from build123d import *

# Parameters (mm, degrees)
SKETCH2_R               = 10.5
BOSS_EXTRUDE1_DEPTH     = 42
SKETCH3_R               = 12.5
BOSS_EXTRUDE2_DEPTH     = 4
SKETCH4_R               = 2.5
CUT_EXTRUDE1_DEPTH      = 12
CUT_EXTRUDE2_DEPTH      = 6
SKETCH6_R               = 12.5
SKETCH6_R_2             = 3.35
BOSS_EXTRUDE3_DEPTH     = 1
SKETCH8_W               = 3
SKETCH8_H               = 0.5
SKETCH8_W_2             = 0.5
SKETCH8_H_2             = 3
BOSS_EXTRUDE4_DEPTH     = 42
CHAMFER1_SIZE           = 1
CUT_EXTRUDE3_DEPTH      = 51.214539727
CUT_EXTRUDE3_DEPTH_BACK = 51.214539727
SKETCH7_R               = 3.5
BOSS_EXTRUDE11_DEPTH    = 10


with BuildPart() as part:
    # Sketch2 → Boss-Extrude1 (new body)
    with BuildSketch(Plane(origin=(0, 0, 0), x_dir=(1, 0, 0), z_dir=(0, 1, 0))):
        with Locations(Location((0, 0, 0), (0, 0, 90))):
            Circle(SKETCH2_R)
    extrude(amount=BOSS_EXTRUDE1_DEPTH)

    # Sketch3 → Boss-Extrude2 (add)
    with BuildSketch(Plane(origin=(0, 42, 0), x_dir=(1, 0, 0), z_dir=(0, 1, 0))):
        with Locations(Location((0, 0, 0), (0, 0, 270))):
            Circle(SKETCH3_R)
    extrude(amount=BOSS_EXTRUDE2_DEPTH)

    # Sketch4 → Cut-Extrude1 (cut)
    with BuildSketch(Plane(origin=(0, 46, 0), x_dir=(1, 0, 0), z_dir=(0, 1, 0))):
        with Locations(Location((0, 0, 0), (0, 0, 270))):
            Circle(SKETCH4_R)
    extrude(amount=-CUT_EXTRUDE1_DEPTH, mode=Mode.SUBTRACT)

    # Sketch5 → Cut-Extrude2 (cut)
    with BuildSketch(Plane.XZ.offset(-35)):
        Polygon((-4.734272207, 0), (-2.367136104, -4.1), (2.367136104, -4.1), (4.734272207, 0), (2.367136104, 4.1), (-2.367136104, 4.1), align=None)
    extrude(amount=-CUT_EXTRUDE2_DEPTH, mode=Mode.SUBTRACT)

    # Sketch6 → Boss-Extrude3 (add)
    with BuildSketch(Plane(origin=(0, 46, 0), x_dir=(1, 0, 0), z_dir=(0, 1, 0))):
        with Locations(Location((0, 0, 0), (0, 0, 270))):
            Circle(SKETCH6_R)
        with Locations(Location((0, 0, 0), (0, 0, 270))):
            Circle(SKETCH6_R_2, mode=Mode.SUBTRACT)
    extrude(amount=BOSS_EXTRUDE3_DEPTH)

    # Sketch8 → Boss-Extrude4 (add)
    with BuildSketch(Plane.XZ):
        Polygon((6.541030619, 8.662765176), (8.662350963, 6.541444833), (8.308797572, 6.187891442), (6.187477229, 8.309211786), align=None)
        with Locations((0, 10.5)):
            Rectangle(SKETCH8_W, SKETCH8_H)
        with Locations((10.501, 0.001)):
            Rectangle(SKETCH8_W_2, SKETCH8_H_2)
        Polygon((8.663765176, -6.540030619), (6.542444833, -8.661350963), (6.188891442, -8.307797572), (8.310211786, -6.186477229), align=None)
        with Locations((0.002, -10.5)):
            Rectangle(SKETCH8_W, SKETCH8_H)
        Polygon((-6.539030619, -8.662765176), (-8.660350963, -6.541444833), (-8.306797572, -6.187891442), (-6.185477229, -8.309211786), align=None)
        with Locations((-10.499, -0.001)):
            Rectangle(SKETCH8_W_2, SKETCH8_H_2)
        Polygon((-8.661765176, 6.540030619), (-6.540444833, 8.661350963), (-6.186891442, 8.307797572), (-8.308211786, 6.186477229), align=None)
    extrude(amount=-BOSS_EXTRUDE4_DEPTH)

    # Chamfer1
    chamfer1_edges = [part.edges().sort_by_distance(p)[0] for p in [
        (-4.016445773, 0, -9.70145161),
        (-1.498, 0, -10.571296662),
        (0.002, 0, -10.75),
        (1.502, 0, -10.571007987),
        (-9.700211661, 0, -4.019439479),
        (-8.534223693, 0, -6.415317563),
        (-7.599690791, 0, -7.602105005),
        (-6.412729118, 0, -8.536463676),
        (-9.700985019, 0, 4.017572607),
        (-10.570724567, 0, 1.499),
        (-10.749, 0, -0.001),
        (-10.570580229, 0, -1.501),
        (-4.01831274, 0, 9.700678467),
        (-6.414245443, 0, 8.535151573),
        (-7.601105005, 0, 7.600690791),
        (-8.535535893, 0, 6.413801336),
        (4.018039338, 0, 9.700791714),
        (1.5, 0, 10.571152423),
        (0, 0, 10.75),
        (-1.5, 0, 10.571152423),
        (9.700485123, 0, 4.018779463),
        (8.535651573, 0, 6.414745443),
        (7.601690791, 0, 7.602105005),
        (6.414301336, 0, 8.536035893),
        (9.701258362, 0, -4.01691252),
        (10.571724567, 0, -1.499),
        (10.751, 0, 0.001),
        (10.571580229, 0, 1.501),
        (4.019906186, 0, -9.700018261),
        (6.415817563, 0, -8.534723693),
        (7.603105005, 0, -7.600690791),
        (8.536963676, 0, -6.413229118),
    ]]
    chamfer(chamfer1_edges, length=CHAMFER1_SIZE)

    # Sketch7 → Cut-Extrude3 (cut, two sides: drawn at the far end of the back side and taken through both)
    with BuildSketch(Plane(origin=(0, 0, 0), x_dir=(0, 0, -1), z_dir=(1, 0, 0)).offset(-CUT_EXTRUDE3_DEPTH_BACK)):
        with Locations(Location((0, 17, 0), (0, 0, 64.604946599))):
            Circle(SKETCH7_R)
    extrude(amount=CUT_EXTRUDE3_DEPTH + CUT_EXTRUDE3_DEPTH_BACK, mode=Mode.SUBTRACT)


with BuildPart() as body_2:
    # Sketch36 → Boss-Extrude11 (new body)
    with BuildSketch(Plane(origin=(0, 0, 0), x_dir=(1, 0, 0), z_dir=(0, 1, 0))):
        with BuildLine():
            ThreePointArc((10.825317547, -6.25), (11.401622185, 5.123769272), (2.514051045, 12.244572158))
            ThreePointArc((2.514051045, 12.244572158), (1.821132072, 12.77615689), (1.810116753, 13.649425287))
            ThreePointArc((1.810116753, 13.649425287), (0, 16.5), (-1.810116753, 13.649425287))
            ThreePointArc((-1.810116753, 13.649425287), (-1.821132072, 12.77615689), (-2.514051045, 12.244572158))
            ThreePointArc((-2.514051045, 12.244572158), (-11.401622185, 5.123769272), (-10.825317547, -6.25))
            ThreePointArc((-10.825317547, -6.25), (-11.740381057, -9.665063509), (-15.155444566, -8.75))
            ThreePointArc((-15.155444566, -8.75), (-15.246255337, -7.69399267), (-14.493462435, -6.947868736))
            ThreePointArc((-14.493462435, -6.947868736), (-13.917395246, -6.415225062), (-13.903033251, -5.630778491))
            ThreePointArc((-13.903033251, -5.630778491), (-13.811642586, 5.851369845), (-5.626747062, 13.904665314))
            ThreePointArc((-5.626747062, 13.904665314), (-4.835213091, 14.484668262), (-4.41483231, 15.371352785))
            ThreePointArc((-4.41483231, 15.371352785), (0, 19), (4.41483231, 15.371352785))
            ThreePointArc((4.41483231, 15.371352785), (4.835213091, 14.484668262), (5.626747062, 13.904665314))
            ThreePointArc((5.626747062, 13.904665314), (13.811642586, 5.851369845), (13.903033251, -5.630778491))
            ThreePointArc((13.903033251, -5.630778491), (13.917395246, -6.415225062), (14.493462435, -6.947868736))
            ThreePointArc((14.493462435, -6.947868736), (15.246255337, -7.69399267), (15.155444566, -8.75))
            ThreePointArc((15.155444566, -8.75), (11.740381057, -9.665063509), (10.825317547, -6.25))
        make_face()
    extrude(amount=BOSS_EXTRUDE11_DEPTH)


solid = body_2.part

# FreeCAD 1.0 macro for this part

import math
import FreeCAD as App
import Part
import Sketcher
Q = App.Units.Quantity


def edges_at(feature, points):
    """Names of the edges that pass closest to the given points."""
    edges = feature.Shape.Edges
    near = lambda p: min(range(len(edges)), key=lambda i: edges[i].distToShape(Part.Vertex(*p))[0])
    return sorted({f"Edge{near(p) + 1}" for p in points})

doc = App.newDocument("Part")
body = doc.addObject("PartDesign::Body", "Body")

sketch1 = body.newObject("Sketcher::SketchObject", "Sketch")
sketch1.AttachmentSupport = (doc.getObject("XZ_Plane"), [""])
sketch1.MapMode = "FlatFace"
sketch1.addGeometry(Part.Circle(App.Vector(0, 0, 0), App.Vector(0, 0, 1), 10), False)
sketch1.addConstraint([
    Sketcher.Constraint("Coincident", 0, 3, -1, 1),
    Sketcher.Constraint("Diameter", 0, 21.0),
])
pad1 = body.newObject("PartDesign::Pad", "Pad")
pad1.Profile = sketch1
pad1.Length = 42
pad1.Reversed = True

sketch2 = body.newObject("Sketcher::SketchObject", "Sketch001")
sketch2.AttachmentSupport = (doc.getObject("XZ_Plane"), [""])
sketch2.MapMode = "FlatFace"
sketch2.AttachmentOffset = App.Placement(App.Vector(0, 0, -42), App.Rotation())
sketch2.addGeometry(Part.Circle(App.Vector(0, 0, 0), App.Vector(0, 0, 1), 12), False)
sketch2.addConstraint([
    Sketcher.Constraint("Coincident", 0, 3, -1, 1),
    Sketcher.Constraint("Diameter", 0, 25.0),
])
pad2 = body.newObject("PartDesign::Pad", "Pad001")
pad2.Profile = sketch2
pad2.Length = 4
pad2.Reversed = True

sketch3 = body.newObject("Sketcher::SketchObject", "Sketch002")
sketch3.AttachmentSupport = (doc.getObject("XZ_Plane"), [""])
sketch3.MapMode = "FlatFace"
sketch3.AttachmentOffset = App.Placement(App.Vector(0, 0, -46), App.Rotation())
sketch3.addGeometry(Part.Circle(App.Vector(0, 0, 0), App.Vector(0, 0, 1), 2.5), False)
sketch3.addConstraint([
    Sketcher.Constraint("Coincident", 0, 3, -1, 1),
    Sketcher.Constraint("Diameter", 0, 5.0),
])
pocket1 = body.newObject("PartDesign::Pocket", "Pocket")
pocket1.Profile = sketch3
pocket1.Length = 12
pocket1.Reversed = True

sketch4 = body.newObject("Sketcher::SketchObject", "Sketch003")
sketch4.AttachmentSupport = (doc.getObject("XZ_Plane"), [""])
sketch4.MapMode = "FlatFace"
sketch4.AttachmentOffset = App.Placement(App.Vector(0, 0, -35), App.Rotation())
sketch4.addGeometry([
    Part.LineSegment(App.Vector(-4.7, 0, 0), App.Vector(-2.4, -4.1, 0)),
    Part.LineSegment(App.Vector(-2.4, -4.1, 0), App.Vector(2.4, -4.1, 0)),
    Part.LineSegment(App.Vector(2.4, -4.1, 0), App.Vector(4.7, 0, 0)),
    Part.LineSegment(App.Vector(4.7, 0, 0), App.Vector(2.4, 4.1, 0)),
    Part.LineSegment(App.Vector(2.4, 4.1, 0), App.Vector(-2.4, 4.1, 0)),
    Part.LineSegment(App.Vector(-2.4, 4.1, 0), App.Vector(-4.7, 0, 0)),
], False)
sketch4.addConstraint([
    Sketcher.Constraint("Coincident", 0, 2, 1, 1),
    Sketcher.Constraint("Coincident", 1, 2, 2, 1),
    Sketcher.Constraint("Coincident", 2, 2, 3, 1),
    Sketcher.Constraint("Coincident", 3, 2, 4, 1),
    Sketcher.Constraint("Coincident", 4, 2, 5, 1),
    Sketcher.Constraint("Coincident", 5, 2, 0, 1),
    Sketcher.Constraint("Horizontal", 1),
    Sketcher.Constraint("Horizontal", 4),
    Sketcher.Constraint("Symmetric", 0, 2, 3, 2, -1, 1),
    Sketcher.Constraint("Symmetric", 2, 2, 5, 2, -1, 1),
    Sketcher.Constraint("PointOnObject", 2, 2, -1),
    Sketcher.Constraint("Parallel", 2, 5),
    Sketcher.Constraint("Vertical", 1, 2, 3, 2),
    Sketcher.Constraint("Angle", 0, Q("-60 deg")),
    Sketcher.Constraint("DistanceY", 0, 2, -1, 1, 4.1),
    Sketcher.Constraint("DistanceX", 1, 1, 1, 2, 4.734272),
])
pocket2 = body.newObject("PartDesign::Pocket", "Pocket001")
pocket2.Profile = sketch4
pocket2.Length = 6

sketch5 = body.newObject("Sketcher::SketchObject", "Sketch004")
sketch5.AttachmentSupport = (doc.getObject("XZ_Plane"), [""])
sketch5.MapMode = "FlatFace"
sketch5.AttachmentOffset = App.Placement(App.Vector(0, 0, -46), App.Rotation())
sketch5.addGeometry([
    Part.Circle(App.Vector(0, 0, 0), App.Vector(0, 0, 1), 12.5),
    Part.Circle(App.Vector(0, 0, 0), App.Vector(0, 0, 1), 3.4),
], False)
sketch5.addConstraint([
    Sketcher.Constraint("Coincident", 0, 3, -1, 1),
    Sketcher.Constraint("Coincident", 1, 3, -1, 1),
    Sketcher.Constraint("Diameter", 0, 25.0),
    Sketcher.Constraint("Diameter", 1, 6.7),
])
pad3 = body.newObject("PartDesign::Pad", "Pad002")
pad3.Profile = sketch5
pad3.Length = 1
pad3.Reversed = True

sketch6 = body.newObject("Sketcher::SketchObject", "Sketch005")
sketch6.AttachmentSupport = (doc.getObject("XZ_Plane"), [""])
sketch6.MapMode = "FlatFace"
sketch6.addGeometry([
    Part.LineSegment(App.Vector(8.66, 6.54, 0), App.Vector(6.54, 8.66, 0)),
    Part.LineSegment(App.Vector(6.54, 8.66, 0), App.Vector(6.19, 8.31, 0)),
    Part.LineSegment(App.Vector(6.19, 8.31, 0), App.Vector(8.31, 6.19, 0)),
    Part.LineSegment(App.Vector(8.31, 6.19, 0), App.Vector(8.66, 6.54, 0)),
    Part.LineSegment(App.Vector(-1.5, 10.75, 0), App.Vector(-1.5, 10.25, 0)),
    Part.LineSegment(App.Vector(-1.5, 10.25, 0), App.Vector(1.5, 10.25, 0)),
    Part.LineSegment(App.Vector(1.5, 10.25, 0), App.Vector(1.5, 10.75, 0)),
    Part.LineSegment(App.Vector(1.5, 10.75, 0), App.Vector(-1.5, 10.75, 0)),
    Part.LineSegment(App.Vector(10.25, 1.5, 0), App.Vector(10.25, -1.5, 0)),
    Part.LineSegment(App.Vector(10.25, -1.5, 0), App.Vector(10.75, -1.5, 0)),
    Part.LineSegment(App.Vector(10.75, -1.5, 0), App.Vector(10.75, 1.5, 0)),
    Part.LineSegment(App.Vector(10.75, 1.5, 0), App.Vector(10.25, 1.5, 0)),
    Part.LineSegment(App.Vector(6.54, -8.66, 0), App.Vector(8.66, -6.54, 0)),
    Part.LineSegment(App.Vector(8.66, -6.54, 0), App.Vector(8.31, -6.19, 0)),
    Part.LineSegment(App.Vector(8.31, -6.19, 0), App.Vector(6.19, -8.31, 0)),
    Part.LineSegment(App.Vector(6.19, -8.31, 0), App.Vector(6.54, -8.66, 0)),
    Part.LineSegment(App.Vector(-1.5, -10.25, 0), App.Vector(-1.5, -10.75, 0)),
    Part.LineSegment(App.Vector(-1.5, -10.75, 0), App.Vector(1.5, -10.75, 0)),
    Part.LineSegment(App.Vector(1.5, -10.75, 0), App.Vector(1.5, -10.25, 0)),
    Part.LineSegment(App.Vector(1.5, -10.25, 0), App.Vector(-1.5, -10.25, 0)),
    Part.LineSegment(App.Vector(-8.66, -6.54, 0), App.Vector(-6.54, -8.66, 0)),
    Part.LineSegment(App.Vector(-6.54, -8.66, 0), App.Vector(-6.19, -8.31, 0)),
    Part.LineSegment(App.Vector(-6.19, -8.31, 0), App.Vector(-8.31, -6.19, 0)),
    Part.LineSegment(App.Vector(-8.31, -6.19, 0), App.Vector(-8.66, -6.54, 0)),
    Part.LineSegment(App.Vector(-10.75, 1.5, 0), App.Vector(-10.75, -1.5, 0)),
    Part.LineSegment(App.Vector(-10.75, -1.5, 0), App.Vector(-10.25, -1.5, 0)),
    Part.LineSegment(App.Vector(-10.25, -1.5, 0), App.Vector(-10.25, 1.5, 0)),
    Part.LineSegment(App.Vector(-10.25, 1.5, 0), App.Vector(-10.75, 1.5, 0)),
    Part.LineSegment(App.Vector(-6.54, 8.66, 0), App.Vector(-8.66, 6.54, 0)),
    Part.LineSegment(App.Vector(-8.66, 6.54, 0), App.Vector(-8.31, 6.19, 0)),
    Part.LineSegment(App.Vector(-8.31, 6.19, 0), App.Vector(-6.19, 8.31, 0)),
    Part.LineSegment(App.Vector(-6.19, 8.31, 0), App.Vector(-6.54, 8.66, 0)),
], False)
sketch6.addConstraint([
    Sketcher.Constraint("Coincident", 0, 2, 1, 1),
    Sketcher.Constraint("Coincident", 1, 2, 2, 1),
    Sketcher.Constraint("Coincident", 2, 2, 3, 1),
    Sketcher.Constraint("Coincident", 3, 2, 0, 1),
    Sketcher.Constraint("Coincident", 4, 2, 5, 1),
    Sketcher.Constraint("Coincident", 5, 2, 6, 1),
    Sketcher.Constraint("Coincident", 6, 2, 7, 1),
    Sketcher.Constraint("Coincident", 7, 2, 4, 1),
    Sketcher.Constraint("Coincident", 8, 2, 9, 1),
    Sketcher.Constraint("Coincident", 9, 2, 10, 1),
    Sketcher.Constraint("Coincident", 10, 2, 11, 1),
    Sketcher.Constraint("Coincident", 11, 2, 8, 1),
    Sketcher.Constraint("Coincident", 12, 2, 13, 1),
    Sketcher.Constraint("Coincident", 13, 2, 14, 1),
    Sketcher.Constraint("Coincident", 14, 2, 15, 1),
    Sketcher.Constraint("Coincident", 15, 2, 12, 1),
    Sketcher.Constraint("Coincident", 16, 2, 17, 1),
    Sketcher.Constraint("Coincident", 17, 2, 18, 1),
    Sketcher.Constraint("Coincident", 18, 2, 19, 1),
    Sketcher.Constraint("Coincident", 19, 2, 16, 1),
    Sketcher.Constraint("Coincident", 20, 2, 21, 1),
    Sketcher.Constraint("Coincident", 21, 2, 22, 1),
    Sketcher.Constraint("Coincident", 22, 2, 23, 1),
    Sketcher.Constraint("Coincident", 23, 2, 20, 1),
    Sketcher.Constraint("Coincident", 24, 2, 25, 1),
    Sketcher.Constraint("Coincident", 25, 2, 26, 1),
    Sketcher.Constraint("Coincident", 26, 2, 27, 1),
    Sketcher.Constraint("Coincident", 27, 2, 24, 1),
    Sketcher.Constraint("Coincident", 28, 2, 29, 1),
    Sketcher.Constraint("Coincident", 29, 2, 30, 1),
    Sketcher.Constraint("Coincident", 30, 2, 31, 1),
    Sketcher.Constraint("Coincident", 31, 2, 28, 1),
    Sketcher.Constraint("Vertical", 4),
    Sketcher.Constraint("Horizontal", 5),
    Sketcher.Constraint("Vertical", 6),
    Sketcher.Constraint("Horizontal", 7),
    Sketcher.Constraint("Vertical", 8),
    Sketcher.Constraint("Horizontal", 9),
    Sketcher.Constraint("Vertical", 10),
    Sketcher.Constraint("Horizontal", 11),
    Sketcher.Constraint("Vertical", 16),
    Sketcher.Constraint("Horizontal", 17),
    Sketcher.Constraint("Vertical", 18),
    Sketcher.Constraint("Horizontal", 19),
    Sketcher.Constraint("Vertical", 24),
    Sketcher.Constraint("Horizontal", 25),
    Sketcher.Constraint("Vertical", 26),
    Sketcher.Constraint("Horizontal", 27),
    Sketcher.Constraint("Perpendicular", 0, 1),
    Sketcher.Constraint("Perpendicular", 1, 2),
    Sketcher.Constraint("Perpendicular", 2, 3),
    Sketcher.Constraint("Parallel", 3, 12),
    Sketcher.Constraint("Perpendicular", 12, 13),
    Sketcher.Constraint("Perpendicular", 13, 14),
    Sketcher.Constraint("Perpendicular", 14, 15),
    Sketcher.Constraint("Parallel", 15, 20),
    Sketcher.Constraint("Perpendicular", 20, 21),
    Sketcher.Constraint("Perpendicular", 21, 22),
    Sketcher.Constraint("Perpendicular", 22, 23),
    Sketcher.Constraint("Parallel", 23, 28),
    Sketcher.Constraint("Perpendicular", 28, 29),
    Sketcher.Constraint("Perpendicular", 29, 30),
    Sketcher.Constraint("Perpendicular", 30, 31),
    Sketcher.Constraint("Equal", 7, 17),
    Sketcher.Constraint("Equal", 11, 25),
    Sketcher.Constraint("Equal", 27, 4),
    Sketcher.Constraint("Equal", 19, 8),
    Sketcher.Constraint("Equal", 6, 16),
    Sketcher.Constraint("Equal", 10, 24),
    Sketcher.Constraint("Equal", 2, 12),
    Sketcher.Constraint("Equal", 3, 13),
    Sketcher.Constraint("Equal", 14, 20),
    Sketcher.Constraint("Equal", 15, 21),
    Sketcher.Constraint("Equal", 22, 28),
    Sketcher.Constraint("Equal", 23, 29),
    Sketcher.Constraint("DistanceX", 5, 1, 5, 2, 3.0),
    Sketcher.Constraint("Angle", 0, Q("135 deg")),
    Sketcher.Constraint("Distance", 0, 3.0),
    Sketcher.Constraint("DistanceX", 9, 1, 9, 2, 0.5),
    Sketcher.Constraint("Distance", 1, 0.5),
    Sketcher.Constraint("DistanceX", 4, 2, -1, 1, 1.5),
    Sketcher.Constraint("DistanceY", -1, 1, 4, 2, 10.25),
    Sketcher.Constraint("DistanceY", 16, 2, -1, 1, 10.75),
    Sketcher.Constraint("DistanceX", -1, 1, 8, 2, 10.251),
    Sketcher.Constraint("DistanceY", 8, 2, -1, 1, 1.499),
    Sketcher.Constraint("DistanceX", 16, 2, -1, 1, 1.498),
    Sketcher.Constraint("DistanceX", 24, 2, -1, 1, 10.749),
    Sketcher.Constraint("DistanceY", 24, 2, -1, 1, 1.501),
    Sketcher.Constraint("DistanceX", -1, 1, 0, 2, 6.541031),
    Sketcher.Constraint("DistanceY", -1, 1, 1, 2, 8.309212),
    Sketcher.Constraint("DistanceY", 12, 2, -1, 1, 6.540031),
    Sketcher.Constraint("DistanceX", -1, 1, 13, 2, 8.310212),
    Sketcher.Constraint("DistanceX", 20, 2, -1, 1, 6.539031),
    Sketcher.Constraint("DistanceY", 21, 2, -1, 1, 8.309212),
    Sketcher.Constraint("DistanceY", -1, 1, 28, 2, 6.540031),
    Sketcher.Constraint("DistanceX", 29, 2, -1, 1, 8.308212),
])
pad4 = body.newObject("PartDesign::Pad", "Pad003")
pad4.Profile = sketch6
pad4.Length = 42
pad4.Reversed = True
doc.recompute()

chamfer = body.newObject("PartDesign::Chamfer", "Chamfer")
chamfer.Base = (pad4, edges_at(pad4, [
    (-4.016, 0, -9.701),
    (-1.498, 0, -10.571),
    (0.002, 0, -10.75),
    (1.502, 0, -10.571),
    (-9.7, 0, -4.019),
    (-8.534, 0, -6.415),
    (-7.6, 0, -7.602),
    (-6.413, 0, -8.536),
    (-9.701, 0, 4.018),
    (-10.571, 0, 1.499),
    (-10.749, 0, -0.001),
    (-10.571, 0, -1.501),
    (-4.018, 0, 9.701),
    (-6.414, 0, 8.535),
    (-7.601, 0, 7.601),
    (-8.536, 0, 6.414),
    (4.018, 0, 9.701),
    (1.5, 0, 10.571),
    (0, 0, 10.75),
    (-1.5, 0, 10.571),
    (9.7, 0, 4.019),
    (8.536, 0, 6.415),
    (7.602, 0, 7.602),
    (6.414, 0, 8.536),
    (9.701, 0, -4.017),
    (10.572, 0, -1.499),
    (10.751, 0, 0.001),
    (10.572, 0, 1.501),
    (4.02, 0, -9.7),
    (6.416, 0, -8.535),
    (7.603, 0, -7.601),
    (8.537, 0, -6.413),
]))
chamfer.Size = 1

sketch7 = body.newObject("Sketcher::SketchObject", "Sketch006")
sketch7.AttachmentSupport = (doc.getObject("YZ_Plane"), [""])
sketch7.MapMode = "FlatFace"
sketch7.addGeometry(Part.Circle(App.Vector(17, 0, 0), App.Vector(0, 0, 1), 3.5), False)
sketch7.addConstraint([
    Sketcher.Constraint("PointOnObject", 0, 3, -1),
    Sketcher.Constraint("Diameter", 0, 7.0),
    Sketcher.Constraint("DistanceX", -1, 1, 0, 3, 17.0),
])
pocket3 = body.newObject("PartDesign::Pocket", "Pocket002")
pocket3.Profile = sketch7
pocket3.Type = "ThroughAll"
pocket3.Midplane = True
body2 = doc.addObject("PartDesign::Body", "Body001")

sketch8 = body2.newObject("Sketcher::SketchObject", "Sketch007")
sketch8.AttachmentSupport = (doc.getObject("XZ_Plane001"), [""])
sketch8.MapMode = "FlatFace"
sketch8.addGeometry([
    Part.ArcOfCircle(Part.Circle(App.Vector(0, 0, 0), App.Vector(0, 0, 1), 12.5), math.radians(-78), math.radians(30)),
    Part.ArcOfCircle(Part.Circle(App.Vector(13, 7.5, 0), App.Vector(0, 0, 1), 2.5), math.radians(30), math.radians(210)),
    Part.ArcOfCircle(Part.Circle(App.Vector(14.1, 8.1, 0), App.Vector(0, 0, 1), 1.2), math.radians(-70), math.radians(30)),
    Part.ArcOfCircle(Part.Circle(App.Vector(14.8, 6, 0), App.Vector(0, 0, 1), 1), math.radians(110), math.radians(202)),
    Part.ArcOfCircle(Part.Circle(App.Vector(0, 0, 0), App.Vector(0, 0, 1), 15), math.radians(-68), math.radians(22)),
    Part.ArcOfCircle(Part.Circle(App.Vector(6.4, -15.8, 0), App.Vector(0, 0, 1), 2), math.radians(112), math.radians(169)),
    Part.ArcOfCircle(Part.Circle(App.Vector(0, -14.5, 0), App.Vector(0, 0, 1), 4.5), math.radians(-169), math.radians(-11)),
    Part.ArcOfCircle(Part.Circle(App.Vector(-6.4, -15.8, 0), App.Vector(0, 0, 1), 2), math.radians(11), math.radians(68)),
    Part.ArcOfCircle(Part.Circle(App.Vector(0, 0, 0), App.Vector(0, 0, 1), 15), math.radians(158), math.radians(248)),
    Part.ArcOfCircle(Part.Circle(App.Vector(-14.8, 6, 0), App.Vector(0, 0, 1), 1), math.radians(-22), math.radians(70)),
    Part.ArcOfCircle(Part.Circle(App.Vector(-14.1, 8.1, 0), App.Vector(0, 0, 1), 1.2), math.radians(150), math.radians(250)),
    Part.ArcOfCircle(Part.Circle(App.Vector(-13, 7.5, 0), App.Vector(0, 0, 1), 2.5), math.radians(-30), math.radians(150)),
    Part.ArcOfCircle(Part.Circle(App.Vector(0, 0, 0), App.Vector(0, 0, 1), 12.5), math.radians(150), math.radians(258)),
    Part.ArcOfCircle(Part.Circle(App.Vector(-2.7, -13.2, 0), App.Vector(0, 0, 1), 1), math.radians(-25), math.radians(78)),
    Part.ArcOfCircle(Part.Circle(App.Vector(0, -14.5, 0), App.Vector(0, 0, 1), 2), math.radians(155), math.radians(385)),
    Part.ArcOfCircle(Part.Circle(App.Vector(2.7, -13.2, 0), App.Vector(0, 0, 1), 1), math.radians(102), math.radians(205)),
], False)
sketch8.addConstraint([
    Sketcher.Constraint("Tangent", 0, 2, 1, 2),
    Sketcher.Constraint("Tangent", 1, 1, 2, 2),
    Sketcher.Constraint("Tangent", 2, 1, 3, 1),
    Sketcher.Constraint("Tangent", 3, 2, 4, 2),
    Sketcher.Constraint("Tangent", 4, 1, 5, 1),
    Sketcher.Constraint("Tangent", 5, 2, 6, 2),
    Sketcher.Constraint("Tangent", 6, 1, 7, 1),
    Sketcher.Constraint("Tangent", 7, 2, 8, 2),
    Sketcher.Constraint("Tangent", 8, 1, 9, 1),
    Sketcher.Constraint("Tangent", 9, 2, 10, 2),
    Sketcher.Constraint("Tangent", 10, 1, 11, 2),
    Sketcher.Constraint("Tangent", 11, 1, 12, 1),
    Sketcher.Constraint("Tangent", 12, 2, 13, 2),
    Sketcher.Constraint("Tangent", 13, 1, 14, 1),
    Sketcher.Constraint("Tangent", 14, 2, 15, 2),
    Sketcher.Constraint("Tangent", 15, 1, 0, 1),
    Sketcher.Constraint("Coincident", 0, 3, -1, 1),
    Sketcher.Constraint("Coincident", 4, 3, -1, 1),
    Sketcher.Constraint("Coincident", 8, 3, -1, 1),
    Sketcher.Constraint("Coincident", 12, 3, -1, 1),
    Sketcher.Constraint("Coincident", 14, 3, 6, 3),
    Sketcher.Constraint("Equal", 5, 7),
    Sketcher.Constraint("Equal", 4, 8),
    Sketcher.Constraint("Equal", 3, 9),
    Sketcher.Constraint("Equal", 2, 10),
    Sketcher.Constraint("Equal", 1, 11),
    Sketcher.Constraint("Equal", 0, 12),
    Sketcher.Constraint("Equal", 9, 13),
    Sketcher.Constraint("Equal", 7, 14),
    Sketcher.Constraint("Equal", 13, 15),
    Sketcher.Constraint("PointOnObject", 6, 3, -2),
    Sketcher.Constraint("Horizontal", 3, 3, 9, 3),
    Sketcher.Constraint("Horizontal", 1, 3, 11, 3),
    Sketcher.Constraint("Radius", 3, 1.0),
    Sketcher.Constraint("Radius", 4, 15.0),
    Sketcher.Constraint("Radius", 5, 2.0),
    Sketcher.Constraint("Radius", 0, 12.5),
    Sketcher.Constraint("Radius", 1, 2.5),
    Sketcher.Constraint("Radius", 6, 4.5),
    Sketcher.Constraint("Radius", 2, 1.25),
    Sketcher.Constraint("DistanceY", 6, 3, 1, 3, 22.0),
    Sketcher.Constraint("DistanceY", -1, 1, 1, 3, 7.5),
    Sketcher.Constraint("DistanceY", 0, 2, 1, 1, 2.5),
])
pad5 = body2.newObject("PartDesign::Pad", "Pad004")
pad5.Profile = sketch8
pad5.Length = 10
pad5.Reversed = True
body.Visibility = False

doc.recompute()
